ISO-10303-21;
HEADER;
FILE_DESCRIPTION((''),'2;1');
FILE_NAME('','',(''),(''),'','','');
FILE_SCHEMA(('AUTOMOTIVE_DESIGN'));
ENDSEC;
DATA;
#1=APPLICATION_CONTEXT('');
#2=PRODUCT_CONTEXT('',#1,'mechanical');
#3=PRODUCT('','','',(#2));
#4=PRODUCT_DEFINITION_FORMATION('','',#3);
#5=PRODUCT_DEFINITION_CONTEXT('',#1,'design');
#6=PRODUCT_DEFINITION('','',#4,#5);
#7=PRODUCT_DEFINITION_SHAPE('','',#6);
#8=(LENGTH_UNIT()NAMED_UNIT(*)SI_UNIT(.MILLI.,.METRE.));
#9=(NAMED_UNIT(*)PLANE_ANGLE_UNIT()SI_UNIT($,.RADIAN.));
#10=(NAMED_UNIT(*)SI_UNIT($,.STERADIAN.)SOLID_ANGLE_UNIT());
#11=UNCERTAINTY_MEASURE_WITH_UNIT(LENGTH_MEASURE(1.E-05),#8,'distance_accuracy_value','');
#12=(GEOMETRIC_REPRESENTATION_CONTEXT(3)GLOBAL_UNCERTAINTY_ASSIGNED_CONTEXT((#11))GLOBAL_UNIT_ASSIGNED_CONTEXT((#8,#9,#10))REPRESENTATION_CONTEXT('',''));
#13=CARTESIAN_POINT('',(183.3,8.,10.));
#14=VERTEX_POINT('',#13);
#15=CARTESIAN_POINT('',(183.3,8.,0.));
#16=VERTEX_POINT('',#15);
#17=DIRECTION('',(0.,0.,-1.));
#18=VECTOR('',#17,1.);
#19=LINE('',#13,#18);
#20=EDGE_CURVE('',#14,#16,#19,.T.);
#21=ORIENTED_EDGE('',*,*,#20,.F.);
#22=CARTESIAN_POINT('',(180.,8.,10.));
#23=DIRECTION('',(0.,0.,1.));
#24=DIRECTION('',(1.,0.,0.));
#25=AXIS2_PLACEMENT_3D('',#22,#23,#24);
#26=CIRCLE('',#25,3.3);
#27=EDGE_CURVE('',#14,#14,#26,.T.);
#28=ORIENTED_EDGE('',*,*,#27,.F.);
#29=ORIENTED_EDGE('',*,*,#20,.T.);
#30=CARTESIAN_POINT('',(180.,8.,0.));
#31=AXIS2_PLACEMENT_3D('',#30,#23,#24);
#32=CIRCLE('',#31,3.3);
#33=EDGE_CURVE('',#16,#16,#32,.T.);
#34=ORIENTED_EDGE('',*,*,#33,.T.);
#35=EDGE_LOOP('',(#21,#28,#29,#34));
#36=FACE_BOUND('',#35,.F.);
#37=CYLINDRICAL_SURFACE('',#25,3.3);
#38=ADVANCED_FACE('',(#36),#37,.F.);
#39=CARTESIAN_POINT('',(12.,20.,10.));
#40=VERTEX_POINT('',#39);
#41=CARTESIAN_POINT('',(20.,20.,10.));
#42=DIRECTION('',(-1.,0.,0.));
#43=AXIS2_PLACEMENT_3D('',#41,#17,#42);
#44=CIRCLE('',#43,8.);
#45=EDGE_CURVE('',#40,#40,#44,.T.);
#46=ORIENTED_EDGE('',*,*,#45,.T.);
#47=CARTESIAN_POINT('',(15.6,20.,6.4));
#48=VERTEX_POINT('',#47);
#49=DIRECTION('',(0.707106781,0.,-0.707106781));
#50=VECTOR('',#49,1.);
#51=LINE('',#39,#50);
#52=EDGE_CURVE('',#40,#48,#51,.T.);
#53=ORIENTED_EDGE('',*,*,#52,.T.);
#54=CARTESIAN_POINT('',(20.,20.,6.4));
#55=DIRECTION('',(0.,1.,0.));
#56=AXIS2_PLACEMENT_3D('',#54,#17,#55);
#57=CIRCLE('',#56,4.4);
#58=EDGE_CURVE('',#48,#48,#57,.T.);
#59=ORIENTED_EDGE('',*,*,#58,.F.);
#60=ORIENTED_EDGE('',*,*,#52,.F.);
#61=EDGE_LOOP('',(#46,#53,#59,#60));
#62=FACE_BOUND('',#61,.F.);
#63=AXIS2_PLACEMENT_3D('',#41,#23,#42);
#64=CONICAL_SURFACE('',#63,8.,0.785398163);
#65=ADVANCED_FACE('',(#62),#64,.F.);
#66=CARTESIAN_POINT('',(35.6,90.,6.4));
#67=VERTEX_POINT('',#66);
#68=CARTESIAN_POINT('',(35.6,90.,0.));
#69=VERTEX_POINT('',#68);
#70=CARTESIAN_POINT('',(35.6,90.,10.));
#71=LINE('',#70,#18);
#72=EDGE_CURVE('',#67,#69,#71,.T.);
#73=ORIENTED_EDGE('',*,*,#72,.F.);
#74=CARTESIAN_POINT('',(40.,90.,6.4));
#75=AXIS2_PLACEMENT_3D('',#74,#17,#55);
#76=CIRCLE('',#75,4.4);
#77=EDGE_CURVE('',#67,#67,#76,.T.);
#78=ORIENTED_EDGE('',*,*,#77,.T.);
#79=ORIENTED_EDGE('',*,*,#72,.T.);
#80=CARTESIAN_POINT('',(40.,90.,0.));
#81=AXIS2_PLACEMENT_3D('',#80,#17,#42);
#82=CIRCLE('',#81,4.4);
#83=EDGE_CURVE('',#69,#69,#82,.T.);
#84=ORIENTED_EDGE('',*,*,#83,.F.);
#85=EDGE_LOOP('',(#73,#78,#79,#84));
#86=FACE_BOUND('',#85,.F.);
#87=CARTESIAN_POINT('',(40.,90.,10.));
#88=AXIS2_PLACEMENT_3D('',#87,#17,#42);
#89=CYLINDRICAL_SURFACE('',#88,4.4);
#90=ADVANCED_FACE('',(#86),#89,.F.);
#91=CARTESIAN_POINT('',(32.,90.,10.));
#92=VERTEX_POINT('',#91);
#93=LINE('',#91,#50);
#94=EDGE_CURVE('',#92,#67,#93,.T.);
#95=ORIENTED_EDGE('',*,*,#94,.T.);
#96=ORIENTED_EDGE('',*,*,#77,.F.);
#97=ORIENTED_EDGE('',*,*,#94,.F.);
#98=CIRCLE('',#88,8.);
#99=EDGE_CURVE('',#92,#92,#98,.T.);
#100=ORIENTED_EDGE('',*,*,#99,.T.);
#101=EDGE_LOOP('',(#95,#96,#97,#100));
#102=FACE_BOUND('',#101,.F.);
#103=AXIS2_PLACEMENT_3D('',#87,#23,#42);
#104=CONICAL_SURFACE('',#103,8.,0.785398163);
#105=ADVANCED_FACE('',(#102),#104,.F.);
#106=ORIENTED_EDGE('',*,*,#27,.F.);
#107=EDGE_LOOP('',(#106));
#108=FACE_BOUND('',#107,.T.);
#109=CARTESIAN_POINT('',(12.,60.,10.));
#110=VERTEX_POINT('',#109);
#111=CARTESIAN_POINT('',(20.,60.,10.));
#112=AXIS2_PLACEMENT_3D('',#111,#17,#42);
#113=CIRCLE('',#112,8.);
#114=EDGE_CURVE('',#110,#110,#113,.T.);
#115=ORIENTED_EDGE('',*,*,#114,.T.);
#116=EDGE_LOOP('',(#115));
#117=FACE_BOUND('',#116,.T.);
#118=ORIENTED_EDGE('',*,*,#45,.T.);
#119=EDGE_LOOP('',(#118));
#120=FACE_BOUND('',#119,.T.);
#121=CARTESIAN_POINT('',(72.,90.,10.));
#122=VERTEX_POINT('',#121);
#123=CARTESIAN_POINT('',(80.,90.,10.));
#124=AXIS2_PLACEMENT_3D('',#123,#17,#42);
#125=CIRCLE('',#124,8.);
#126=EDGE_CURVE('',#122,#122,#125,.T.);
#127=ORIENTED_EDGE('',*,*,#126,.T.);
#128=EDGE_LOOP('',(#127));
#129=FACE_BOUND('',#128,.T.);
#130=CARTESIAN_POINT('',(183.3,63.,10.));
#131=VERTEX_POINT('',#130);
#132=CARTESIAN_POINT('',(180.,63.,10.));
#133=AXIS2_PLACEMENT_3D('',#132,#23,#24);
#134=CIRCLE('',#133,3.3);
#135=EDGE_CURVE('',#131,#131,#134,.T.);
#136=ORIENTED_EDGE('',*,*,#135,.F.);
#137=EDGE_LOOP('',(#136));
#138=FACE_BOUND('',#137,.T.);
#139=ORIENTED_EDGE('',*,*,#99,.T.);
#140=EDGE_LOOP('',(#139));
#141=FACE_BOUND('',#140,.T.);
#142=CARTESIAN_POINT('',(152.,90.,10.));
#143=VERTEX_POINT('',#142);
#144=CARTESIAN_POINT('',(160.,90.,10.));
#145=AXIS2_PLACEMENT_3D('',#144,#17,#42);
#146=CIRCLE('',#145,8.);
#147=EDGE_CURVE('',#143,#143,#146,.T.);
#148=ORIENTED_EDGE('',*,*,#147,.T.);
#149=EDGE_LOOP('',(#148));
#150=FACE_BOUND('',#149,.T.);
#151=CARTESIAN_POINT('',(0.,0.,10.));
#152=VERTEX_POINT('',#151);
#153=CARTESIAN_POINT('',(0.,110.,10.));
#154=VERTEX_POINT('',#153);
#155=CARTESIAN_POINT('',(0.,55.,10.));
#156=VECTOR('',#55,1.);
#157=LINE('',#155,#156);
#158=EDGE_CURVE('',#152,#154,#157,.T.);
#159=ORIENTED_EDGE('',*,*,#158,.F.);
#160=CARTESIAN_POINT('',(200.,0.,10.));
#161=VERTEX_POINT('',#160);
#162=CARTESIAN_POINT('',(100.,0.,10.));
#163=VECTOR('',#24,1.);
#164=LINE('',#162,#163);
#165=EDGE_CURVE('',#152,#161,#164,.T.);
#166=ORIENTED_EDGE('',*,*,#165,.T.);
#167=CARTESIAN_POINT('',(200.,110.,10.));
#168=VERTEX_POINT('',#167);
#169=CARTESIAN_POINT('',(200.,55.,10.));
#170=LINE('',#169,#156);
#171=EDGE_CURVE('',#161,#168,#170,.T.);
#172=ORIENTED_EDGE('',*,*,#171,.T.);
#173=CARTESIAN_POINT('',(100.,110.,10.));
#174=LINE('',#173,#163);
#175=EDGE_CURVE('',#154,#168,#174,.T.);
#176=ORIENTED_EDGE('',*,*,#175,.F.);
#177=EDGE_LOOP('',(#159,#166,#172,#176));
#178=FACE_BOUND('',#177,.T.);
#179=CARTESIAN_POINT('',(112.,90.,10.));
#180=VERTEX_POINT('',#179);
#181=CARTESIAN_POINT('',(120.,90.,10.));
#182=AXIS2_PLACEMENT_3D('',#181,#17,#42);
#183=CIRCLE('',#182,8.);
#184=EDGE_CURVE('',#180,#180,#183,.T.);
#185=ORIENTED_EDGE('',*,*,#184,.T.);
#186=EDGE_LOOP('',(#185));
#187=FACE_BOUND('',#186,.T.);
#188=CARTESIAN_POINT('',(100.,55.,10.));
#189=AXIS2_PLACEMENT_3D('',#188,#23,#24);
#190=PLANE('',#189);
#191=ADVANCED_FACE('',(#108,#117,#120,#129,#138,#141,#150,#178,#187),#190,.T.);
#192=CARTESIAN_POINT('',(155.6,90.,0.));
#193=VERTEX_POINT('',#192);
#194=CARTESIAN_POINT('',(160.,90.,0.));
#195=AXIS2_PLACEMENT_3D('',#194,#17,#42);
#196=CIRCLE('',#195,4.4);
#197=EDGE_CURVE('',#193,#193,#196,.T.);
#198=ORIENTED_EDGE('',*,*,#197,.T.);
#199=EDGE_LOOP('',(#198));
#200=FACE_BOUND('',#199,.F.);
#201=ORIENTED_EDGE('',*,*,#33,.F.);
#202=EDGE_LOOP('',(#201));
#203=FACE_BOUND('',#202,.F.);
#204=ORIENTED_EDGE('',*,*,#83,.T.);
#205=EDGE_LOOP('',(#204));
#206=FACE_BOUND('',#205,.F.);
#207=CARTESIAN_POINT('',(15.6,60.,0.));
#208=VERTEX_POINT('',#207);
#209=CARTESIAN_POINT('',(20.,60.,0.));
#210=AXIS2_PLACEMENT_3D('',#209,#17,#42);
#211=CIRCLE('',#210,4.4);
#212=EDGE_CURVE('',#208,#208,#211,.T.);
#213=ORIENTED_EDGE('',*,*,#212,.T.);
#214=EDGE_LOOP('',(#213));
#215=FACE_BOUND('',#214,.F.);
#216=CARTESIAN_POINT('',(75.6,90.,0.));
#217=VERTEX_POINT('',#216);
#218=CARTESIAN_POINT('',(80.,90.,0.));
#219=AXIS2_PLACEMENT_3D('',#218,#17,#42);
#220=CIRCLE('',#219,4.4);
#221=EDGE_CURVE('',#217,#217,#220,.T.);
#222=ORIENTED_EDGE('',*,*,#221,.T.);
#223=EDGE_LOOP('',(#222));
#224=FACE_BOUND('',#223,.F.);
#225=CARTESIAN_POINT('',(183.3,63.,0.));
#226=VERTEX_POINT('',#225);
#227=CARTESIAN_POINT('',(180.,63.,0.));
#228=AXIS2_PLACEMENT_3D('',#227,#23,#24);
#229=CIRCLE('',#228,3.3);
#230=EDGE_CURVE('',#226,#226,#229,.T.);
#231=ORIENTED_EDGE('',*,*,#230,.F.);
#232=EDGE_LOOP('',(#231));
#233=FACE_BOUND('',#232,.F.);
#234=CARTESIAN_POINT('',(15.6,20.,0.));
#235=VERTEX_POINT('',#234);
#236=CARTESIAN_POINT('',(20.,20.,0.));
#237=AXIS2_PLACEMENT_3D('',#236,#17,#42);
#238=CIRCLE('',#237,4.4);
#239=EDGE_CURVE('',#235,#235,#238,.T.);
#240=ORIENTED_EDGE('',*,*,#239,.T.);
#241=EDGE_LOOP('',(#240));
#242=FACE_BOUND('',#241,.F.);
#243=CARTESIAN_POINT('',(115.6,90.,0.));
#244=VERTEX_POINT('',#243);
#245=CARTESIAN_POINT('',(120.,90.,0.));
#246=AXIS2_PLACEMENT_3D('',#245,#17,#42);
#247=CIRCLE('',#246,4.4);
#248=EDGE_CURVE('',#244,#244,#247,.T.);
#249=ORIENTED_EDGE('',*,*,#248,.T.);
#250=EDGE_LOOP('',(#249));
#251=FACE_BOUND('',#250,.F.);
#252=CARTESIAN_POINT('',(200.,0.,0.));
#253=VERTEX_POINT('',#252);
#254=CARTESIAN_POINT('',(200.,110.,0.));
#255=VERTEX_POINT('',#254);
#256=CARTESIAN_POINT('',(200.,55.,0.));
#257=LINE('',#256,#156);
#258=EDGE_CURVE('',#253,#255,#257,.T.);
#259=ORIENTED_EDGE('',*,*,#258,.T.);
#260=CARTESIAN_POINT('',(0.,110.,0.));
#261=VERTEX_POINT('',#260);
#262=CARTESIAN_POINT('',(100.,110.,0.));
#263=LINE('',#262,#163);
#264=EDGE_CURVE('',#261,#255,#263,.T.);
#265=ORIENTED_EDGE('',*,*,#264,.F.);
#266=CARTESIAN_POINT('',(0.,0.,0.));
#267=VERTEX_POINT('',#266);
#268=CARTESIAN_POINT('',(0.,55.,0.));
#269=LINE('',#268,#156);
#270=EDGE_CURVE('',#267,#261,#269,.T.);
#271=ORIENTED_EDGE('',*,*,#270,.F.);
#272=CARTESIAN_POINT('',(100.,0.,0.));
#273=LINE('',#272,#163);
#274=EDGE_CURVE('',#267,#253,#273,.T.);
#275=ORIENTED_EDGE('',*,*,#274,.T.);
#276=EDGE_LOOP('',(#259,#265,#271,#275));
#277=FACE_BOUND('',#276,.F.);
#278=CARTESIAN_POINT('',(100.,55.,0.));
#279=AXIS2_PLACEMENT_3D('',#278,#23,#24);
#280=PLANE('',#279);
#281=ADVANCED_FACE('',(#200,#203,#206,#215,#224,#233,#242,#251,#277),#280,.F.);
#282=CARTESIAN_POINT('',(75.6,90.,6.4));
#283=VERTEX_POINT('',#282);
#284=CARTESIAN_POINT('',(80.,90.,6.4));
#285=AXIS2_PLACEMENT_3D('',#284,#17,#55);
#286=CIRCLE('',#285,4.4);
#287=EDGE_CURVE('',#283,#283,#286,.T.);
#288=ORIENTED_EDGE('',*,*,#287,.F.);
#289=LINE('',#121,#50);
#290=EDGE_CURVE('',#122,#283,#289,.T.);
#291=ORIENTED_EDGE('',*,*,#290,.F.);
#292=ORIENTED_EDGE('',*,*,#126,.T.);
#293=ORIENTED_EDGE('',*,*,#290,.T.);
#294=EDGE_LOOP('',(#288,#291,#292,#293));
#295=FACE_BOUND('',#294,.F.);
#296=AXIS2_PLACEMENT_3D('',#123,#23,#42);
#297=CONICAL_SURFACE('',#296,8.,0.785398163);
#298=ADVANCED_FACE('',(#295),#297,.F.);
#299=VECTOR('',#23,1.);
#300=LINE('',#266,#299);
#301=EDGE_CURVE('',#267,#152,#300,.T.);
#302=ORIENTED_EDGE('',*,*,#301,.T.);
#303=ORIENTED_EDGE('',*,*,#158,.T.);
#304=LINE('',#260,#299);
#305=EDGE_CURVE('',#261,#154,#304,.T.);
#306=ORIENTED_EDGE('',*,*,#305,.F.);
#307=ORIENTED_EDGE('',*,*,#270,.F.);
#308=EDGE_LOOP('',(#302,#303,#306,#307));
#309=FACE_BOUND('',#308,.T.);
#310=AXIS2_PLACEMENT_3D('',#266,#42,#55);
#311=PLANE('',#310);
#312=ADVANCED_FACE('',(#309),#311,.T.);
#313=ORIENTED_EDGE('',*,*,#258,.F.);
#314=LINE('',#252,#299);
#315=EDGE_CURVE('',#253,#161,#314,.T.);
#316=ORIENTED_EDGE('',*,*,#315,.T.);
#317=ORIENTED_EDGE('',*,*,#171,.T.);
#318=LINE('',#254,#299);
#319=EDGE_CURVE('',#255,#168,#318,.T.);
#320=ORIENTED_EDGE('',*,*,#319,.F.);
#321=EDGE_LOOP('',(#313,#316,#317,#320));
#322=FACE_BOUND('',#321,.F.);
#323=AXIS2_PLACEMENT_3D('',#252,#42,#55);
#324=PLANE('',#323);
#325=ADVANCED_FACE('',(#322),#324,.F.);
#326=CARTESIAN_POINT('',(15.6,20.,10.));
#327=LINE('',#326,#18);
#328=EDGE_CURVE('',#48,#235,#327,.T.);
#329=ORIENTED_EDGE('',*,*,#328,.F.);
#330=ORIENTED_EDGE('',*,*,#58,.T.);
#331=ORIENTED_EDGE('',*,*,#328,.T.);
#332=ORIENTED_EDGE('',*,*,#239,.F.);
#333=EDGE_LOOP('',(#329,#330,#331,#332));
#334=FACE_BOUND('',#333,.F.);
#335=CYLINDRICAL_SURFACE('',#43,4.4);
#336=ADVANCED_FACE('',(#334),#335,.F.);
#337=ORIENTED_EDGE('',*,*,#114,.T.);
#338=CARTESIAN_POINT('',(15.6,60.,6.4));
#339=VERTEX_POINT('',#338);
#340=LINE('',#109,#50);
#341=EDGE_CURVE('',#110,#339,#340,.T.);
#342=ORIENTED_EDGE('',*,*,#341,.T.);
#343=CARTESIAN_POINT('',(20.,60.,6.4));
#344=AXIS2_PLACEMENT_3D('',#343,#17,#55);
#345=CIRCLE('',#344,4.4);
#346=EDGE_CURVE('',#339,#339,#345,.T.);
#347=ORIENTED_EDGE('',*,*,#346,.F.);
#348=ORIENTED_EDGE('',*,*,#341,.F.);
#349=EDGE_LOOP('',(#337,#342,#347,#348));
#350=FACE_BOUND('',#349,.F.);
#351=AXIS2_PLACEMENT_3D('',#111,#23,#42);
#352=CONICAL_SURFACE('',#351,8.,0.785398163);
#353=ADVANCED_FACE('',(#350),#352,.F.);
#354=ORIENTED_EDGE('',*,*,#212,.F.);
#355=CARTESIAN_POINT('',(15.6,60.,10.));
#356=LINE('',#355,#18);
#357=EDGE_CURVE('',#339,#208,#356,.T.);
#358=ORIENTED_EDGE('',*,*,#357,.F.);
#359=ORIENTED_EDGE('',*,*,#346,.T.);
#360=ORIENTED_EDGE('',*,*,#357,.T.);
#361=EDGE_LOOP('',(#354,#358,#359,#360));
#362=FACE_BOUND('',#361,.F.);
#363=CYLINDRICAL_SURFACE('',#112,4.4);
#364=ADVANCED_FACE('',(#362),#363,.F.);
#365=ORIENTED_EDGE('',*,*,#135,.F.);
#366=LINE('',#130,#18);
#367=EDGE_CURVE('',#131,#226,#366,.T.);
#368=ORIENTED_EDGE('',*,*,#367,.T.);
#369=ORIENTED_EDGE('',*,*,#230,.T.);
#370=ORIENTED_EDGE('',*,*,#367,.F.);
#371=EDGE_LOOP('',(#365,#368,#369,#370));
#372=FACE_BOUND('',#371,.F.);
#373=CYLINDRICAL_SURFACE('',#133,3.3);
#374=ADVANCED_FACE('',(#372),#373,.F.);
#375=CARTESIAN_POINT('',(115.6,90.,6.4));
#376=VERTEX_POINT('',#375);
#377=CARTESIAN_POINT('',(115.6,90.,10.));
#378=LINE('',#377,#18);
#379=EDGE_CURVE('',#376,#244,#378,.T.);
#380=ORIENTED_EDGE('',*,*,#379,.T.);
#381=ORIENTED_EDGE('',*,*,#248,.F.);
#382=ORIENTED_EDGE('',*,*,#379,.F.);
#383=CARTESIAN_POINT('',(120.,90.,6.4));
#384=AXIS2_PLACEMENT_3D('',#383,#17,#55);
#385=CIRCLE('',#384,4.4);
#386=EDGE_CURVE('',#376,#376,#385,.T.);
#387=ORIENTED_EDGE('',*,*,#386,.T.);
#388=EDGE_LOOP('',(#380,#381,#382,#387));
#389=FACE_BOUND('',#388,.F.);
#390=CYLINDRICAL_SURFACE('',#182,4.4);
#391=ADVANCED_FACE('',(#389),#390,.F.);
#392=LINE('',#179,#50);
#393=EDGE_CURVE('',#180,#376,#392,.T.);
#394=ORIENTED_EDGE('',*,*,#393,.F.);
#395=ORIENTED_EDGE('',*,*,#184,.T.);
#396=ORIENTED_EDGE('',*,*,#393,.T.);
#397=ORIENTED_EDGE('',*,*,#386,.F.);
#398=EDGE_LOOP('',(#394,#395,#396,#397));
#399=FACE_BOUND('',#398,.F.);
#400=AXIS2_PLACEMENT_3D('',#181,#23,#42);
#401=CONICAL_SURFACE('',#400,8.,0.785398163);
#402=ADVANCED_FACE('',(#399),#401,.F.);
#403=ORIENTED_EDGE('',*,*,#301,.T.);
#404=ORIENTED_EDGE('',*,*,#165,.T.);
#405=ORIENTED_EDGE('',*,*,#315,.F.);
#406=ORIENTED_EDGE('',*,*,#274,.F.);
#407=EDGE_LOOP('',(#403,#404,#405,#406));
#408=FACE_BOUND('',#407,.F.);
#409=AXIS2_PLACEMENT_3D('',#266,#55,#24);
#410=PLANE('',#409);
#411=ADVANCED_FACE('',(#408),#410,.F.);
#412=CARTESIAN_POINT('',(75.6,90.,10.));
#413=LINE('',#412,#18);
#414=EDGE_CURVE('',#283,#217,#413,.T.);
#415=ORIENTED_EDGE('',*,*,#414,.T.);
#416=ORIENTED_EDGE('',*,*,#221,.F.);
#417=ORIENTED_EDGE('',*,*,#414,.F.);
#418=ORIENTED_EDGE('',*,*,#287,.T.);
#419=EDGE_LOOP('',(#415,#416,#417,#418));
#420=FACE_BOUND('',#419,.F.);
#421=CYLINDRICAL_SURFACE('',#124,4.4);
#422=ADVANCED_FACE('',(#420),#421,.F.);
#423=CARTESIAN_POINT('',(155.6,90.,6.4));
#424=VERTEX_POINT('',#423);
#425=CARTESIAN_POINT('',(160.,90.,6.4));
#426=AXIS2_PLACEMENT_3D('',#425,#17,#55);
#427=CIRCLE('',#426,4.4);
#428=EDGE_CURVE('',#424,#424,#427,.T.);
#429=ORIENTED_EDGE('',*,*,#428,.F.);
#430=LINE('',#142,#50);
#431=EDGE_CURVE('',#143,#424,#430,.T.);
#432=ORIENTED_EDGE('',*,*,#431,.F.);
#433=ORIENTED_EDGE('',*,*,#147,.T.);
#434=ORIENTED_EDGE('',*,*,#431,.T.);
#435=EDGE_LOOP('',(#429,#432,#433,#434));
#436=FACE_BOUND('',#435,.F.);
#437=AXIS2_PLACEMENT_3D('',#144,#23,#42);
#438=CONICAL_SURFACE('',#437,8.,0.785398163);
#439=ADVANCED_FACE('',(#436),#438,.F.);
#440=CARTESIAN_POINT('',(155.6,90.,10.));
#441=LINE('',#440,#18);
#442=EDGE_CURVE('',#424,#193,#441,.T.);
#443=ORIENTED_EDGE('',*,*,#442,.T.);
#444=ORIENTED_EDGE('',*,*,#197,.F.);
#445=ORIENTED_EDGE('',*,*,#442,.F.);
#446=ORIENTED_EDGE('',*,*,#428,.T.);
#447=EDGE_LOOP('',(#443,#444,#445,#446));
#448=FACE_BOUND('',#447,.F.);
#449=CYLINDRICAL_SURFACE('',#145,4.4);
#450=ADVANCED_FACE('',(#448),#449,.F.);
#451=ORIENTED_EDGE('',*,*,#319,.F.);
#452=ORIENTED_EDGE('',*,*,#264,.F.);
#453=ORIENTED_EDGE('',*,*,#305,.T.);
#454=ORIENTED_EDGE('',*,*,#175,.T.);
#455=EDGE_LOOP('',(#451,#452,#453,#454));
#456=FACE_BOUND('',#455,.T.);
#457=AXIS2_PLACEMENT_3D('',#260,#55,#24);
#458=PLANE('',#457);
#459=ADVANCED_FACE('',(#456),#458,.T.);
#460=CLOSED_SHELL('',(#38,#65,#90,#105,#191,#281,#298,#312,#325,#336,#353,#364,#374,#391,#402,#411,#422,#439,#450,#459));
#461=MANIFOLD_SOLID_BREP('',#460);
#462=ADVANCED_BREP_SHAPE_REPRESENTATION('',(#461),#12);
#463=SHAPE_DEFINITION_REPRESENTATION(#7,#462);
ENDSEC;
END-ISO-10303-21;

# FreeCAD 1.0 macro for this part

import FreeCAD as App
import Part
import Sketcher
Q = App.Units.Quantity

doc = App.newDocument("Part")
body = doc.addObject("PartDesign::Body", "Body")

sketch1 = body.newObject("Sketcher::SketchObject", "Sketch")
sketch1.AttachmentSupport = (doc.getObject("XY_Plane"), [""])
sketch1.MapMode = "FlatFace"
sketch1.addGeometry([
    Part.LineSegment(App.Vector(0, 110, 0), App.Vector(0, 0, 0)),
    Part.LineSegment(App.Vector(0, 0, 0), App.Vector(200, 0, 0)),
    Part.LineSegment(App.Vector(200, 0, 0), App.Vector(200, 110, 0)),
    Part.LineSegment(App.Vector(200, 110, 0), App.Vector(0, 110, 0)),
], False)
sketch1.addConstraint([
    Sketcher.Constraint("Coincident", 0, 2, 1, 1),
    Sketcher.Constraint("Coincident", 1, 2, 2, 1),
    Sketcher.Constraint("Coincident", 2, 2, 3, 1),
    Sketcher.Constraint("Coincident", 3, 2, 0, 1),
    Sketcher.Constraint("Vertical", 0),
    Sketcher.Constraint("Horizontal", 1),
    Sketcher.Constraint("Vertical", 2),
    Sketcher.Constraint("Horizontal", 3),
    Sketcher.Constraint("Coincident", 0, 2, -1, 1),
    Sketcher.Constraint("DistanceX", 1, 1, 1, 2, Q("200 mm")),
    Sketcher.Constraint("DistanceY", 0, 2, 0, 1, Q("110 mm")),
])
pad1 = body.newObject("PartDesign::Pad", "Pad")
pad1.Profile = sketch1
pad1.Length = 10

sketch2 = body.newObject("Sketcher::SketchObject", "Sketch001")
sketch2.AttachmentSupport = (doc.getObject("XY_Plane"), [""])
sketch2.MapMode = "FlatFace"
sketch2.AttachmentOffset = App.Placement(App.Vector(0, 0, 10), App.Rotation())
sketch2.addGeometry(Part.Circle(App.Vector(20, 20, 0), App.Vector(0, 0, 1), 4.4), False)
sketch2.addConstraint([
    Sketcher.Constraint("Diameter", 0, Q("8.8 mm")),
    Sketcher.Constraint("DistanceX", -1, 1, 0, 3, Q("20 mm")),
    Sketcher.Constraint("DistanceY", -1, 1, 0, 3, Q("20 mm")),
])
doc.recompute()
hole = body.newObject("PartDesign::Hole", "Hole")
hole.Profile = sketch2
hole.ThreadType = "None"
hole.Diameter = 8.8
hole.DepthType = "ThroughAll"
hole.HoleCutType = "Countersink"
hole.HoleCutDiameter = 16
hole.HoleCutCountersinkAngle = 90
doc.recompute()

linearpattern = body.newObject("PartDesign::LinearPattern", "LinearPattern")
linearpattern.Originals = [hole]
linearpattern.Direction = (doc.getObject("Y_Axis"), [""])
linearpattern.Mode = "offset"
linearpattern.Offset = 40
linearpattern.Occurrences = 2
body.Tip = linearpattern

sketch3 = body.newObject("Sketcher::SketchObject", "Sketch002")
sketch3.AttachmentSupport = (doc.getObject("XY_Plane"), [""])
sketch3.MapMode = "FlatFace"
sketch3.AttachmentOffset = App.Placement(App.Vector(0, 0, 10), App.Rotation())
sketch3.addGeometry(Part.Circle(App.Vector(180, 63, 0), App.Vector(0, 0, 1), 3.3), False)
sketch3.addConstraint([
    Sketcher.Constraint("Diameter", 0, Q("6.6 mm")),
    Sketcher.Constraint("DistanceX", -1, 1, 0, 3, Q("180 mm")),
    Sketcher.Constraint("DistanceY", -1, 1, 0, 3, Q("63 mm")),
])
pocket1 = body.newObject("PartDesign::Pocket", "Pocket")
pocket1.Profile = sketch3
pocket1.Type = "ThroughAll"
doc.recompute()

linearpattern2 = body.newObject("PartDesign::LinearPattern", "LinearPattern001")
linearpattern2.Originals = [pocket1]
linearpattern2.Direction = (doc.getObject("Y_Axis"), [""])
linearpattern2.Mode = "offset"
linearpattern2.Offset = 55
linearpattern2.Occurrences = 2
linearpattern2.Reversed = True
body.Tip = linearpattern2

sketch4 = body.newObject("Sketcher::SketchObject", "Sketch003")
sketch4.AttachmentSupport = (doc.getObject("XY_Plane"), [""])
sketch4.MapMode = "FlatFace"
sketch4.AttachmentOffset = App.Placement(App.Vector(0, 0, 10), App.Rotation())
sketch4.addGeometry(Part.Circle(App.Vector(40, 90, 0), App.Vector(0, 0, 1), 4.4), False)
sketch4.addConstraint([
    Sketcher.Constraint("Diameter", 0, Q("8.8 mm")),
    Sketcher.Constraint("DistanceX", -1, 1, 0, 3, Q("40 mm")),
    Sketcher.Constraint("DistanceY", -1, 1, 0, 3, Q("90 mm")),
])
doc.recompute()
hole2 = body.newObject("PartDesign::Hole", "Hole001")
hole2.Profile = sketch4
hole2.ThreadType = "None"
hole2.Diameter = 8.8
hole2.DepthType = "ThroughAll"
hole2.HoleCutType = "Countersink"
hole2.HoleCutDiameter = 16
hole2.HoleCutCountersinkAngle = 90
doc.recompute()

linearpattern3 = body.newObject("PartDesign::LinearPattern", "LinearPattern002")
linearpattern3.Originals = [hole2]
linearpattern3.Direction = (doc.getObject("X_Axis"), [""])
linearpattern3.Mode = "offset"
linearpattern3.Offset = 40
linearpattern3.Occurrences = 4
body.Tip = linearpattern3

doc.recompute()
